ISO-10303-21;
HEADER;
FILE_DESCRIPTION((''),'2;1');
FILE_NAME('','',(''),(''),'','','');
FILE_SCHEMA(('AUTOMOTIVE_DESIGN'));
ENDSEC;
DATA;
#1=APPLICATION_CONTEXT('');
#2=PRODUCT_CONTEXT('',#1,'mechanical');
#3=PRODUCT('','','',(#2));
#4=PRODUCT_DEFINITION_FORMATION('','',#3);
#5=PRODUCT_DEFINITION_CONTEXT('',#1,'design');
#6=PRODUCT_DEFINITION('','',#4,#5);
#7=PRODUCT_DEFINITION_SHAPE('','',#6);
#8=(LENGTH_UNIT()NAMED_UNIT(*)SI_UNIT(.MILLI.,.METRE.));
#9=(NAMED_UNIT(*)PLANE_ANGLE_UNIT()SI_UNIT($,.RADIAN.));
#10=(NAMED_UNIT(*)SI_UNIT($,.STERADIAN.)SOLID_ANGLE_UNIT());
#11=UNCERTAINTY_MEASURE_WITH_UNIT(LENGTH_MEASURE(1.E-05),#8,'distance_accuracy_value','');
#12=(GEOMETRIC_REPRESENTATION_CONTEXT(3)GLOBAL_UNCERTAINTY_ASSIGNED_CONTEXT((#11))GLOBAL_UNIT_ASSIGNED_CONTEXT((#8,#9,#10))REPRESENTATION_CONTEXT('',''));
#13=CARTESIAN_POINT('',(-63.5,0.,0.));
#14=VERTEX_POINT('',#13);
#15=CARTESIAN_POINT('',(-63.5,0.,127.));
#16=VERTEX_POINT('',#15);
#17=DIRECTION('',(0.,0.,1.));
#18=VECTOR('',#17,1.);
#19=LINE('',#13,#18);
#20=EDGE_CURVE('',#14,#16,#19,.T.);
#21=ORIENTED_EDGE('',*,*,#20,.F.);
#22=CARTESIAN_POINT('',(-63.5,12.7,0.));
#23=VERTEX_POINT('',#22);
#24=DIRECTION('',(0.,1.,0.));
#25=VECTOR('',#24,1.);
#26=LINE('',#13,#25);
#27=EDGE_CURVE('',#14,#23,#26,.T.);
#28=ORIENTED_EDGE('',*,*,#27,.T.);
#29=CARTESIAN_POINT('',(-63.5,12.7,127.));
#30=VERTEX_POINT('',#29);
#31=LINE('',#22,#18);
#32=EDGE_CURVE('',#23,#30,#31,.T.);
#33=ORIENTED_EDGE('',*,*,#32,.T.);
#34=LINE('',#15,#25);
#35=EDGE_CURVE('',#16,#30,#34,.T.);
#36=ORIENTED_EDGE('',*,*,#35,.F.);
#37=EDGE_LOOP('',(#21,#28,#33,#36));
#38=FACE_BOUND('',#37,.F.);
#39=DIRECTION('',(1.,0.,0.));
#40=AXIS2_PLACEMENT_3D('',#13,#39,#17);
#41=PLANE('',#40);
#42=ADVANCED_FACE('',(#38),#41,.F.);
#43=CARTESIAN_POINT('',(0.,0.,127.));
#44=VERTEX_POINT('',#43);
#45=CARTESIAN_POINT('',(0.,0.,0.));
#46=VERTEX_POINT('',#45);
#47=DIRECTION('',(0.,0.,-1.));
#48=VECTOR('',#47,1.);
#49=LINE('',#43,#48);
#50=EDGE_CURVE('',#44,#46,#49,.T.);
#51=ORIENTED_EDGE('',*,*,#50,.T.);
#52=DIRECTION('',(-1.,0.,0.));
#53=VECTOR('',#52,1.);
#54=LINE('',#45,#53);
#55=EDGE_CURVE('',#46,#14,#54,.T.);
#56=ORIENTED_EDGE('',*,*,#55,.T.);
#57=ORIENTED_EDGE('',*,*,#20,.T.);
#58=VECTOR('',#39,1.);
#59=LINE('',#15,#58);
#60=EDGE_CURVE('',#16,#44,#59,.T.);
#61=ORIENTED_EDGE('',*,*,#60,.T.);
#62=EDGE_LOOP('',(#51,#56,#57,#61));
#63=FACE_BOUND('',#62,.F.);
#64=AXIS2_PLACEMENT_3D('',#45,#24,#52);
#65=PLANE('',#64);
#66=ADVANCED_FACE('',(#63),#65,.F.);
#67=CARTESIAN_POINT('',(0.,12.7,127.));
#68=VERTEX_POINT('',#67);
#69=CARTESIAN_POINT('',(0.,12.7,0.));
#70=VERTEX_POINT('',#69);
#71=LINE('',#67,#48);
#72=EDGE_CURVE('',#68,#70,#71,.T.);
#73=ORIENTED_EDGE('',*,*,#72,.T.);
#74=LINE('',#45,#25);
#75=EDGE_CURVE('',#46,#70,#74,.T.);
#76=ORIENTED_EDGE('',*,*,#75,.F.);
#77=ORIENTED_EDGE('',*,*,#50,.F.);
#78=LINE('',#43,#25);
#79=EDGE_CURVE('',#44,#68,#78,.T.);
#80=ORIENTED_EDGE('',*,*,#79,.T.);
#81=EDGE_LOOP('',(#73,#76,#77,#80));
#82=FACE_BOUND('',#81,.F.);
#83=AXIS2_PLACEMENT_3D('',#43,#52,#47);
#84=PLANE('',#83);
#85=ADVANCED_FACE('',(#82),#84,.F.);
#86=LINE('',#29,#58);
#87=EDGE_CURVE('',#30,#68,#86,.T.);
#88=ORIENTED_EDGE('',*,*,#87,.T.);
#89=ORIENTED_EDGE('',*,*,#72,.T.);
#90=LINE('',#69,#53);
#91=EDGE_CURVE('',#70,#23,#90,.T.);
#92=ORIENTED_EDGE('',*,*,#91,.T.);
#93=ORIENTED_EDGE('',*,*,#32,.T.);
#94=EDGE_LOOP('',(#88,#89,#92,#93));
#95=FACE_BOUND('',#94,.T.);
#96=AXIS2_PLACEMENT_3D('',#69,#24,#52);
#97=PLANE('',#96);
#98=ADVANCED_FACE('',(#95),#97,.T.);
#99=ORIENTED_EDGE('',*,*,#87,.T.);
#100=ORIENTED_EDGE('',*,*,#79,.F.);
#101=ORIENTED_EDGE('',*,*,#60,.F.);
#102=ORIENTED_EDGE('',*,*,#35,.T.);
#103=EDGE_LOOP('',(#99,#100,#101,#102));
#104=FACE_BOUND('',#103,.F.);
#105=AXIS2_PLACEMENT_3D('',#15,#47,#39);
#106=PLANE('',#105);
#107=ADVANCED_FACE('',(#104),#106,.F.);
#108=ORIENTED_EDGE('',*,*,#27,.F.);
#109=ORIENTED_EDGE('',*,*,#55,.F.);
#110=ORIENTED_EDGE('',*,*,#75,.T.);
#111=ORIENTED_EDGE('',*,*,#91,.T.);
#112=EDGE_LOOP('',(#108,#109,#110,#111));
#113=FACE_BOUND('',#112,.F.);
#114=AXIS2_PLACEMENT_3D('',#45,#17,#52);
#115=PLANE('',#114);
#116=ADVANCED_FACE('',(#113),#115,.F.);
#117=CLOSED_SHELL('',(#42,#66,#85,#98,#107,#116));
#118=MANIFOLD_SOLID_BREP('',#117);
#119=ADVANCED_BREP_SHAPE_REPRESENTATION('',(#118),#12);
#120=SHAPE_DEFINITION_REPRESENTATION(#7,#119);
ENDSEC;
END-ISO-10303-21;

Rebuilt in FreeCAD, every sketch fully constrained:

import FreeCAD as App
import Part
import Sketcher

V = App.Vector
Q = App.Units.Quantity

doc = App.newDocument("Part")
body = doc.addObject("PartDesign::Body", "Body")

# Sketch on XZ plane
sketch1 = doc.addObject("Sketcher::SketchObject", "Sketch")
body.addObject(sketch1)
sketch1.AttachmentSupport = (doc.XZ_Plane, [""])
sketch1.MapMode = "FlatFace"
sketch1.addGeometry([
    Part.LineSegment(V(0, 127, 0), V(0, 0, 0)),
    Part.LineSegment(V(0, 0, 0), V(-64, 0, 0)),
    Part.LineSegment(V(-64, 0, 0), V(-64, 127, 0)),
    Part.LineSegment(V(-64, 127, 0), V(0, 127, 0)),
], False)
sketch1.addConstraint([
    Sketcher.Constraint("Coincident", 0, 2, 1, 1),
    Sketcher.Constraint("Coincident", 1, 2, 2, 1),
    Sketcher.Constraint("Coincident", 2, 2, 3, 1),
    Sketcher.Constraint("Coincident", 3, 2, 0, 1),
    Sketcher.Constraint("Vertical", 0),
    Sketcher.Constraint("Horizontal", 1),
    Sketcher.Constraint("Vertical", 2),
    Sketcher.Constraint("Horizontal", 3),
    Sketcher.Constraint("Coincident", 0, 2, -1, 1),
    Sketcher.Constraint("DistanceY", 0, 2, 0, 1, Q("5 in")),
    Sketcher.Constraint("DistanceX", 1, 2, 1, 1, Q("2.5 in")),
])
pad1 = doc.addObject("PartDesign::Pad", "Pad")
body.addObject(pad1)
pad1.Profile = sketch1
pad1.Length = Q("0.5 in")
pad1.Reversed = True

doc.recompute()
